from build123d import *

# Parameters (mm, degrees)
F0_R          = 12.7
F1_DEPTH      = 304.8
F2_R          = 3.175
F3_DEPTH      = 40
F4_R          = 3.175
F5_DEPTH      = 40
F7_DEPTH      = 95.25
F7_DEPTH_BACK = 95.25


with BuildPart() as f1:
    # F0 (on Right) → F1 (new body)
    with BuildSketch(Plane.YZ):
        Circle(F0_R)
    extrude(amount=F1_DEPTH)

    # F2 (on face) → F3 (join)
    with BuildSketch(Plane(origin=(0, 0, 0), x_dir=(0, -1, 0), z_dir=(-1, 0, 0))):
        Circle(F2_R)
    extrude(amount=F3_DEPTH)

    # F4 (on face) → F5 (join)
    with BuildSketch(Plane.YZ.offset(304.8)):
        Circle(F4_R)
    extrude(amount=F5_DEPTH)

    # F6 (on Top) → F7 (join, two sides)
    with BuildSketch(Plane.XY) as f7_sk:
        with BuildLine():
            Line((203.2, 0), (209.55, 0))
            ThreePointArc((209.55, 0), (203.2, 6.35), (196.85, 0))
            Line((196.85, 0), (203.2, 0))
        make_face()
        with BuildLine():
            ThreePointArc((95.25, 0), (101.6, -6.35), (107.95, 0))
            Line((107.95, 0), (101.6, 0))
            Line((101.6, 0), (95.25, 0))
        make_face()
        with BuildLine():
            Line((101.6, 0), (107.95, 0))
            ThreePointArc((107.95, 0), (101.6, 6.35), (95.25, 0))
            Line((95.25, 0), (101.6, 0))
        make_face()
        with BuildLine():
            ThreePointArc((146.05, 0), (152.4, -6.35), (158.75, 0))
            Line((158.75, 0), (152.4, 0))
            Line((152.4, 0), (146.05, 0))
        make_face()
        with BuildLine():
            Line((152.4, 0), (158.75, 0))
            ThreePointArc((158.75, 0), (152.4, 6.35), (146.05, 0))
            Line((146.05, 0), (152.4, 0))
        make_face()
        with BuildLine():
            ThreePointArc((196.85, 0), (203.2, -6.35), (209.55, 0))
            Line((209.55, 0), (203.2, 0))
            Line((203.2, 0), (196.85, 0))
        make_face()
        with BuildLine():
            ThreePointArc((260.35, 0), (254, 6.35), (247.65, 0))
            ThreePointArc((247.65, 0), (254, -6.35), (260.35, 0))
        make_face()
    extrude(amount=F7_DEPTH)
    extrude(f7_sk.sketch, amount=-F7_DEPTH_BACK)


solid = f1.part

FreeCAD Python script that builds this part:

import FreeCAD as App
import Part
import Sketcher
Q = App.Units.Quantity

doc = App.newDocument("Part")
body = doc.addObject("PartDesign::Body", "Body")

# Sketch on YZ plane
sketch1 = body.newObject("Sketcher::SketchObject", "Sketch")
sketch1.AttachmentSupport = (doc.getObject("YZ_Plane"), [""])
sketch1.MapMode = "FlatFace"
sketch1.addGeometry(Part.Circle(App.Vector(0, 0, 0), App.Vector(0, 0, 1), 12.7), False)
sketch1.addConstraint(Sketcher.Constraint("Coincident", 0, 3, -1, 1))
sketch1.addConstraint(Sketcher.Constraint("Diameter", 0, Q("1 in")))
pad1 = body.newObject("PartDesign::Pad", "Pad")
pad1.Profile = sketch1
pad1.Length = Q("12 in")

# Sketch on YZ plane
sketch2 = body.newObject("Sketcher::SketchObject", "Sketch001")
sketch2.AttachmentSupport = (doc.getObject("YZ_Plane"), [""])
sketch2.MapMode = "FlatFace"
sketch2.addGeometry(Part.Circle(App.Vector(0, 0, 0), App.Vector(0, 0, 1), 3.175), False)
sketch2.addConstraint(Sketcher.Constraint("Coincident", 0, 3, -1, 1))
sketch2.addConstraint(Sketcher.Constraint("Diameter", 0, Q("0.25 in")))
pad2 = body.newObject("PartDesign::Pad", "Pad001")
pad2.Profile = sketch2
pad2.Length = 40
pad2.Reversed = True

# Sketch on YZ plane
sketch3 = body.newObject("Sketcher::SketchObject", "Sketch002")
sketch3.AttachmentSupport = (doc.getObject("YZ_Plane"), [""])
sketch3.MapMode = "FlatFace"
sketch3.AttachmentOffset = App.Placement(App.Vector(0, 0, 12 * 25.4), App.Rotation())
sketch3.addGeometry(Part.Circle(App.Vector(0, 0, 0), App.Vector(0, 0, 1), 3.175), False)
sketch3.addConstraint(Sketcher.Constraint("Coincident", 0, 3, -1, 1))
sketch3.addConstraint(Sketcher.Constraint("Diameter", 0, Q("0.25 in")))
pad3 = body.newObject("PartDesign::Pad", "Pad002")
pad3.Profile = sketch3
pad3.Length = 40

# Sketch on XY plane
sketch4 = body.newObject("Sketcher::SketchObject", "Sketch003")
sketch4.AttachmentSupport = (doc.getObject("XY_Plane"), [""])
sketch4.MapMode = "FlatFace"
sketch4.addGeometry(Part.Circle(App.Vector(203.2, 0, 0), App.Vector(0, 0, 1), 6.35), False)
sketch4.addGeometry(Part.Circle(App.Vector(101.6, 0, 0), App.Vector(0, 0, 1), 6.35), False)
sketch4.addGeometry(Part.Circle(App.Vector(152.4, 0, 0), App.Vector(0, 0, 1), 6.35), False)
sketch4.addGeometry(Part.Circle(App.Vector(254, 0, 0), App.Vector(0, 0, 1), 6.35), False)
sketch4.addConstraint(Sketcher.Constraint("Equal", 0, 1))
sketch4.addConstraint(Sketcher.Constraint("Equal", 1, 2))
sketch4.addConstraint(Sketcher.Constraint("Equal", 2, 3))
sketch4.addConstraint(Sketcher.Constraint("PointOnObject", 0, 3, -1))
sketch4.addConstraint(Sketcher.Constraint("PointOnObject", 1, 3, -1))
sketch4.addConstraint(Sketcher.Constraint("PointOnObject", 2, 3, -1))
sketch4.addConstraint(Sketcher.Constraint("PointOnObject", 3, 3, -1))
sketch4.addConstraint(Sketcher.Constraint("Diameter", 0, Q("0.5 in")))
sketch4.addConstraint(Sketcher.Constraint("DistanceX", -1, 1, 0, 3, Q("8 in")))
sketch4.addConstraint(Sketcher.Constraint("DistanceX", -1, 1, 1, 3, Q("4 in")))
sketch4.addConstraint(Sketcher.Constraint("DistanceX", -1, 1, 2, 3, Q("6 in")))
sketch4.addConstraint(Sketcher.Constraint("DistanceX", -1, 1, 3, 3, Q("10 in")))
pad4 = body.newObject("PartDesign::Pad", "Pad003")
pad4.Profile = sketch4
pad4.Type = "TwoLengths"
pad4.Length = Q("3.75 in")
pad4.Length2 = Q("3.75 in")

doc.recompute()
